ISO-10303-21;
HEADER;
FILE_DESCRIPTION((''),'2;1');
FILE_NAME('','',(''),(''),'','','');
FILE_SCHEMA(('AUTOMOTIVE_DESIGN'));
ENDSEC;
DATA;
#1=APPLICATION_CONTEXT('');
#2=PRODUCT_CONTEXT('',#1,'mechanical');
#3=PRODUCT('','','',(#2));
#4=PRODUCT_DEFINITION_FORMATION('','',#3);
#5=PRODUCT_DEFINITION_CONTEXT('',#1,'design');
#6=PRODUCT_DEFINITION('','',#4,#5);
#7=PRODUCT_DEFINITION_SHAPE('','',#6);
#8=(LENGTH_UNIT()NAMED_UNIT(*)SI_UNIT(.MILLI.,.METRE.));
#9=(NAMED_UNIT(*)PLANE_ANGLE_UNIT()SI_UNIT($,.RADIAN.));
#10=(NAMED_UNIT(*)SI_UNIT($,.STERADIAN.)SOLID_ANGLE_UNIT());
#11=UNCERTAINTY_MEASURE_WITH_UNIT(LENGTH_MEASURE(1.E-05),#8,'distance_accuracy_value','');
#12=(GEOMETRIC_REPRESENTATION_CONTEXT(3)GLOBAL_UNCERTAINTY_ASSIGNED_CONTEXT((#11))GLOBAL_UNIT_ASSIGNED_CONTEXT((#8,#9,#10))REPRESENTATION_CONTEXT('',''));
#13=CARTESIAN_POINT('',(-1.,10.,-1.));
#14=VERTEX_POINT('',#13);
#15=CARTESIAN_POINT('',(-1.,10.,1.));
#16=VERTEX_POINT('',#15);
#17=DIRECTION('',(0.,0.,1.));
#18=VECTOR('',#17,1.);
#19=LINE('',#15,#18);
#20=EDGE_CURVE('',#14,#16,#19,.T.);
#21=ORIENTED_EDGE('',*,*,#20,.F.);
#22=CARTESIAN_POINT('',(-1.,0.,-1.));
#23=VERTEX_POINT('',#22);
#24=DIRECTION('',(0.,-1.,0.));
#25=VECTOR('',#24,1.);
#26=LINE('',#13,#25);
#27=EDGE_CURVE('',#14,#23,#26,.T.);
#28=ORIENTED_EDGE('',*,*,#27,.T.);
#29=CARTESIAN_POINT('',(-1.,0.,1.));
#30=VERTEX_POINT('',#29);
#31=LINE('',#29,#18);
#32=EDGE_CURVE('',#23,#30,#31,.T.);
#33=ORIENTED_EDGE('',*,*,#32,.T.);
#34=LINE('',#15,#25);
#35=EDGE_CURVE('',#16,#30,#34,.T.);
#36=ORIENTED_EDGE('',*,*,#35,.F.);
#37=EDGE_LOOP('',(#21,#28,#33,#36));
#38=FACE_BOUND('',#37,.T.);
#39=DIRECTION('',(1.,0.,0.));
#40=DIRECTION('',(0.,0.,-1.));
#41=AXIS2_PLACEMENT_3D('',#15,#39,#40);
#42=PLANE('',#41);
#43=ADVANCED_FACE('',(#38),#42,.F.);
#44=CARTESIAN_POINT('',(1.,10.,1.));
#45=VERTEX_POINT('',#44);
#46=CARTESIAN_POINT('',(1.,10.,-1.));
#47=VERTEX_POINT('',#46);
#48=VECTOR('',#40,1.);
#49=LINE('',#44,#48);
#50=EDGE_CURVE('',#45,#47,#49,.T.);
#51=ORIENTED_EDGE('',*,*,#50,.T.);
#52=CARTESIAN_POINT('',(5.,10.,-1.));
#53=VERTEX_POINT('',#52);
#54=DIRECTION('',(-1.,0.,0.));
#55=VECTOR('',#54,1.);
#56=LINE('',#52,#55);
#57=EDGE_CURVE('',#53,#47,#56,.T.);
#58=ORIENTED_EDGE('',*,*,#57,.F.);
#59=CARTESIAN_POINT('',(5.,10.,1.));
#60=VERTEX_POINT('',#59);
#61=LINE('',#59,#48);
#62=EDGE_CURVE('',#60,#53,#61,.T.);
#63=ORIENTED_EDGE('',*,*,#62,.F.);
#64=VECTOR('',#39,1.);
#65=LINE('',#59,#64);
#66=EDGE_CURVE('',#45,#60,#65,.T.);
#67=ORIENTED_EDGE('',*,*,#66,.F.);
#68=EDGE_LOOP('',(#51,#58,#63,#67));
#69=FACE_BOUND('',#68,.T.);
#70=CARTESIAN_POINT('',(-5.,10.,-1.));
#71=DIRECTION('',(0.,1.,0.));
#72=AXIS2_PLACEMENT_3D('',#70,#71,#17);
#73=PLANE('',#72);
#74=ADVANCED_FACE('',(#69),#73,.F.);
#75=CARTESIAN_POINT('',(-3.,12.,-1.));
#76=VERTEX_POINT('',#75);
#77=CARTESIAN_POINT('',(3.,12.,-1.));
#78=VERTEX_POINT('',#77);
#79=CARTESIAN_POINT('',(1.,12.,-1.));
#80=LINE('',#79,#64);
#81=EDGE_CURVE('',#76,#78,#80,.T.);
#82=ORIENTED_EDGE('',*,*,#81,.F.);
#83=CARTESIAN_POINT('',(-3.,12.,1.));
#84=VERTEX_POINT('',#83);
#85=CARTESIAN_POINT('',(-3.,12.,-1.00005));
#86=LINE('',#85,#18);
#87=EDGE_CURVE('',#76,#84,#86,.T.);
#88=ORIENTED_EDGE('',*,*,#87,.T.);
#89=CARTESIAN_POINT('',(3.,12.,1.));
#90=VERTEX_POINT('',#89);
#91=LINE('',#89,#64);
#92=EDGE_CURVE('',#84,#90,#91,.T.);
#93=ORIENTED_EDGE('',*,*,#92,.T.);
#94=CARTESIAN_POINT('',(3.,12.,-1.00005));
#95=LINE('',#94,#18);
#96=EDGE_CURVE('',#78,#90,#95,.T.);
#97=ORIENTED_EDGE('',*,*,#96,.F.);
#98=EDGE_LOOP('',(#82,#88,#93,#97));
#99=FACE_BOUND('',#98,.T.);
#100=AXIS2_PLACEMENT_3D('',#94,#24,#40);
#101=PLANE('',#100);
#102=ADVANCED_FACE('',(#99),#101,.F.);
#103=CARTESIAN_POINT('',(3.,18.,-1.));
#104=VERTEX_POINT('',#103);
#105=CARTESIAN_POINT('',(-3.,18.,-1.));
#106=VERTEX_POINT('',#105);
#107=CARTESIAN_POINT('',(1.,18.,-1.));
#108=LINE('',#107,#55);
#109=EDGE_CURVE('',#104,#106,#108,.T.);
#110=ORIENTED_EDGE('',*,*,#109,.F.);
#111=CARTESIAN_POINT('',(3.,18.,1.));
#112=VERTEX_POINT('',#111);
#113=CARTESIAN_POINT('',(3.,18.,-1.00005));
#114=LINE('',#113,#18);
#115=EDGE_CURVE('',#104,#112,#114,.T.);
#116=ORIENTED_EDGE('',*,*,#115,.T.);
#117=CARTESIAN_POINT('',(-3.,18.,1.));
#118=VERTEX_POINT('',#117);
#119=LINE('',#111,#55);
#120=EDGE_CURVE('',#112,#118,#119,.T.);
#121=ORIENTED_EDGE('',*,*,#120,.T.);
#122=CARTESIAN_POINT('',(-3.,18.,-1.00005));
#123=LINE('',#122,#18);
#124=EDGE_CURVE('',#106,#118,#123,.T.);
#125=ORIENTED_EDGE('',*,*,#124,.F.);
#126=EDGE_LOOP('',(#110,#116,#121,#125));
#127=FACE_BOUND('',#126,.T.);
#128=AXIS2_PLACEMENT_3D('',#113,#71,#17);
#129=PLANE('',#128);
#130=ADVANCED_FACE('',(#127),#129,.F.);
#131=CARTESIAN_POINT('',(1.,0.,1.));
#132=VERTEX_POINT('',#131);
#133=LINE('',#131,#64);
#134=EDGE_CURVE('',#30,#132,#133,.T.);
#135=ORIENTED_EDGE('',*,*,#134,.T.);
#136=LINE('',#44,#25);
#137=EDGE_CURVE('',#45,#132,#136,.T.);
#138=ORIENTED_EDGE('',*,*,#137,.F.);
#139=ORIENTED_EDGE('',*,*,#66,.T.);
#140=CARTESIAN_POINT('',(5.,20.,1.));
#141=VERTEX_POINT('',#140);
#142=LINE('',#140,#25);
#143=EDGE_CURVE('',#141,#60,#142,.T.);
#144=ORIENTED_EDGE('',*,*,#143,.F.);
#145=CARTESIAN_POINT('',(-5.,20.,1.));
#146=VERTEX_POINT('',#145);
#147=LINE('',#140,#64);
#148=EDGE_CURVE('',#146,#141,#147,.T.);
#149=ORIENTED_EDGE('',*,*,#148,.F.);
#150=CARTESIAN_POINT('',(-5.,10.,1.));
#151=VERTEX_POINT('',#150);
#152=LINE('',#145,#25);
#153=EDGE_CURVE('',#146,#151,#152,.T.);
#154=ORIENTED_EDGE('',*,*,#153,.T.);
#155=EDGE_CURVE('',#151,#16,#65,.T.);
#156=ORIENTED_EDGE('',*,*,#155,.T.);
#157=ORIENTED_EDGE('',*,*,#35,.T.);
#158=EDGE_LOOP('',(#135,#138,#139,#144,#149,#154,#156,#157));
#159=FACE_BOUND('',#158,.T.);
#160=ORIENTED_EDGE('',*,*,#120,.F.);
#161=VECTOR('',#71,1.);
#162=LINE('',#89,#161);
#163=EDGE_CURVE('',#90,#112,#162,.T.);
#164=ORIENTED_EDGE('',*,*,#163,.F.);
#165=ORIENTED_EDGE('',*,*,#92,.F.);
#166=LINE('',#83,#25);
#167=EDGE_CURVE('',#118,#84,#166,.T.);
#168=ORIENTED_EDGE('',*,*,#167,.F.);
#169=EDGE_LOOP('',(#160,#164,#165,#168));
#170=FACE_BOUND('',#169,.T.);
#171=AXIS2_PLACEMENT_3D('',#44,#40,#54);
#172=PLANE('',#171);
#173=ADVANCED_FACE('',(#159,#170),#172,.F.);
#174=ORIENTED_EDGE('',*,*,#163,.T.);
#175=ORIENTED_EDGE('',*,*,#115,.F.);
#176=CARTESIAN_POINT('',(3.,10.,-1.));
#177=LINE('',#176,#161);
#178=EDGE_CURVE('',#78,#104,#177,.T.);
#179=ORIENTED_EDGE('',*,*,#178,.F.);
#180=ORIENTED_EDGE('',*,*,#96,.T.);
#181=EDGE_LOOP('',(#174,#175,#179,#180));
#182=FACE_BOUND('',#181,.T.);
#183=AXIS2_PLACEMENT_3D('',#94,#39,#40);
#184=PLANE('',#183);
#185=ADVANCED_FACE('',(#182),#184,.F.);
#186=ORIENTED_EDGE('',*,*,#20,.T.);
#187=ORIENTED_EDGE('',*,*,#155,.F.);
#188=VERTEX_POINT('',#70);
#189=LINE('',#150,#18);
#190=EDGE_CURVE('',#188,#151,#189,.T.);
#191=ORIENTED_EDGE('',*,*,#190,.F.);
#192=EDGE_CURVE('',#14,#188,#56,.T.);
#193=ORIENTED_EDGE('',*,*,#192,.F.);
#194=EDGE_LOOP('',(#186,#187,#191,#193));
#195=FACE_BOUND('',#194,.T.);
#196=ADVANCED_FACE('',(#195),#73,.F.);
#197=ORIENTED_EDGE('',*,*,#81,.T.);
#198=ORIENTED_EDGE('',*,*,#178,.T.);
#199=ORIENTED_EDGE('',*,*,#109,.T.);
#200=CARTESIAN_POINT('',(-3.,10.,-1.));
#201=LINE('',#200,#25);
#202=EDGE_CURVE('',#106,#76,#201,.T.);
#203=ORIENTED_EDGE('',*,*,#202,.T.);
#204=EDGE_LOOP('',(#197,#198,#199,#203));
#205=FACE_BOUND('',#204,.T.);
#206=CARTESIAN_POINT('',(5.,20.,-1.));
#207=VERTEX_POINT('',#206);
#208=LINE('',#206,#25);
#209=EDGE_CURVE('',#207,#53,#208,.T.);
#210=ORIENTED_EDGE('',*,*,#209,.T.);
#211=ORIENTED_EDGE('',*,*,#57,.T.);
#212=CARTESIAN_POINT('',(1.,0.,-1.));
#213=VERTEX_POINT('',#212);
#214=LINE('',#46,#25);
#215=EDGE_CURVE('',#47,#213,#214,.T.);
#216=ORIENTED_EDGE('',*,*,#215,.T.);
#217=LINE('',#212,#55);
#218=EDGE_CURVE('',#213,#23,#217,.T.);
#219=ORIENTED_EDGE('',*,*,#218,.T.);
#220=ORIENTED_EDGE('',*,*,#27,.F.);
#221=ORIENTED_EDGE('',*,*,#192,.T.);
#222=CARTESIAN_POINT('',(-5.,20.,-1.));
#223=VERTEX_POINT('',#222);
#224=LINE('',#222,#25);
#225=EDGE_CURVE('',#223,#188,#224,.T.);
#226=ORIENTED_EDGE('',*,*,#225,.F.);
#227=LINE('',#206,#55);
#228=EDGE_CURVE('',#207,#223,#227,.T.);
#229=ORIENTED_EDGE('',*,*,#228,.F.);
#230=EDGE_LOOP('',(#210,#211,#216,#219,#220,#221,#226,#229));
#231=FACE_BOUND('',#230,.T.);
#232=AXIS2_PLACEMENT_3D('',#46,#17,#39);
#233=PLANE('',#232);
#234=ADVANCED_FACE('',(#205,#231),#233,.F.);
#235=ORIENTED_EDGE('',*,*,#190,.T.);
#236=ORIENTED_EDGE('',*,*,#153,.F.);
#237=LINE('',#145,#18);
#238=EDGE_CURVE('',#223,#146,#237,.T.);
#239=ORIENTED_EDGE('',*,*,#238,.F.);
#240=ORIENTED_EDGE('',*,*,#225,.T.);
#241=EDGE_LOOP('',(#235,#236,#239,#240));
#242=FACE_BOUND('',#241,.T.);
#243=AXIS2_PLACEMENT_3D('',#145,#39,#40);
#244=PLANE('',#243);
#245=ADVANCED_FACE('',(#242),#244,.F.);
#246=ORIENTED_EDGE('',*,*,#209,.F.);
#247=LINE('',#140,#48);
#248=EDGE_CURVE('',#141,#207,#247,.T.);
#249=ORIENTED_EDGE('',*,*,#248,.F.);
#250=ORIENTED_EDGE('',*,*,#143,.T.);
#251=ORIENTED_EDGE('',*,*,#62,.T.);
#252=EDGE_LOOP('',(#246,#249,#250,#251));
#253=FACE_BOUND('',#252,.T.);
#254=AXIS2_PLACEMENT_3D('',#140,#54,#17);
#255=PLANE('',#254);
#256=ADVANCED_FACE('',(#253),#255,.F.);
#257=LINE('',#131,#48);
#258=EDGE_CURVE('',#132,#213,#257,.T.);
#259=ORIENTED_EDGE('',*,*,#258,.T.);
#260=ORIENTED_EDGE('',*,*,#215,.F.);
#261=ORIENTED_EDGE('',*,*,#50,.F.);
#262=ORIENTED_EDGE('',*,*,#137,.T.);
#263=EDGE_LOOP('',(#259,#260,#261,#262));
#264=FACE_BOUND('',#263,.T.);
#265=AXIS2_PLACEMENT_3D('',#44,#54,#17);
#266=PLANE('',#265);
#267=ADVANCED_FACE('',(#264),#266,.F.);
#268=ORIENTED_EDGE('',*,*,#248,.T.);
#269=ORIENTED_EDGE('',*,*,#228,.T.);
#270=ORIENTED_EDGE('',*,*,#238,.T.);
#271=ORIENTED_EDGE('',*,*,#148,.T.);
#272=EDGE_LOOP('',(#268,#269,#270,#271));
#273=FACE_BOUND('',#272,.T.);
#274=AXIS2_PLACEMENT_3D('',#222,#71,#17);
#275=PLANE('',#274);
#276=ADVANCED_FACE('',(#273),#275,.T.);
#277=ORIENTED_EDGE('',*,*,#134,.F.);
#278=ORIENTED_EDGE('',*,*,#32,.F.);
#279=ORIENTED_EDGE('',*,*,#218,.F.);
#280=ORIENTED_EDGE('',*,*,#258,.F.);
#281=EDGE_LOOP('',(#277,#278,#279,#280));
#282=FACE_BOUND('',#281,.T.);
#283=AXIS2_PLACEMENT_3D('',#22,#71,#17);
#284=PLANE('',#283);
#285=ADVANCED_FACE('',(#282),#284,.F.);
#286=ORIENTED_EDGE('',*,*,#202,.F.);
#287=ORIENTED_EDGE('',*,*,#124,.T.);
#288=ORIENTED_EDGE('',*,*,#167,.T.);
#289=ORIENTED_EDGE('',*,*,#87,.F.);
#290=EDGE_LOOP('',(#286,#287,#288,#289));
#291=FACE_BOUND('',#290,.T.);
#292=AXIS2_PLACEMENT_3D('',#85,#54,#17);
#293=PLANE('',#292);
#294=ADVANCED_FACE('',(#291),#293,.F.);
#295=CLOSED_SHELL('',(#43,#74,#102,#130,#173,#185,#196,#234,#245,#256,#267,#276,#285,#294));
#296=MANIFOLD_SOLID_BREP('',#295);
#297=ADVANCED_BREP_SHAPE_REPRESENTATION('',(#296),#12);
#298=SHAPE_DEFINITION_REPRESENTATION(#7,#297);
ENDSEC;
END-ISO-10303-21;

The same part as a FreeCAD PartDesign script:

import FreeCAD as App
import Part
import Sketcher
Q = App.Units.Quantity

doc = App.newDocument("Part")
body = doc.addObject("PartDesign::Body", "Body")

# Sketch on XZ plane
sketch1 = doc.addObject("Sketcher::SketchObject", "Sketch")
body.addObject(sketch1)
sketch1.AttachmentSupport = (doc.XZ_Plane, [""])
sketch1.MapMode = "FlatFace"
sketch1.addGeometry([
    Part.LineSegment(App.Vector(-1, -1, 0), App.Vector(-1, 1, 0)),
    Part.LineSegment(App.Vector(-1, 1, 0), App.Vector(1, 1, 0)),
    Part.LineSegment(App.Vector(1, 1, 0), App.Vector(1, -1, 0)),
    Part.LineSegment(App.Vector(1, -1, 0), App.Vector(-1, -1, 0)),
], False)
sketch1.addConstraint([
    Sketcher.Constraint("Coincident", 0, 2, 1, 1),
    Sketcher.Constraint("Coincident", 1, 2, 2, 1),
    Sketcher.Constraint("Coincident", 2, 2, 3, 1),
    Sketcher.Constraint("Coincident", 3, 2, 0, 1),
    Sketcher.Constraint("Vertical", 0),
    Sketcher.Constraint("Horizontal", 1),
    Sketcher.Constraint("Vertical", 2),
    Sketcher.Constraint("Horizontal", 3),
    Sketcher.Constraint("Symmetric", 0, 2, 2, 2, -1, 1),
    Sketcher.Constraint("Equal", 3, 0),
    Sketcher.Constraint("DistanceX", 1, 1, 1, 2, Q("2 mm")),
])
pad1 = doc.addObject("PartDesign::Pad", "Pad")
body.addObject(pad1)
pad1.Profile = sketch1
pad1.Length = 10
pad1.Reversed = True

# Sketch on XZ plane
sketch2 = doc.addObject("Sketcher::SketchObject", "Sketch001")
body.addObject(sketch2)
sketch2.AttachmentSupport = (doc.XZ_Plane, [""])
sketch2.MapMode = "FlatFace"
sketch2.AttachmentOffset = App.Placement(App.Vector(0, 0, -10), App.Rotation())
sketch2.addGeometry([
    Part.LineSegment(App.Vector(5, 1, 0), App.Vector(5, -1, 0)),
    Part.LineSegment(App.Vector(5, -1, 0), App.Vector(-5, -1, 0)),
    Part.LineSegment(App.Vector(-5, -1, 0), App.Vector(-5, 1, 0)),
    Part.LineSegment(App.Vector(-5, 1, 0), App.Vector(5, 1, 0)),
], False)
sketch2.addConstraint([
    Sketcher.Constraint("Coincident", 0, 2, 1, 1),
    Sketcher.Constraint("Coincident", 1, 2, 2, 1),
    Sketcher.Constraint("Coincident", 2, 2, 3, 1),
    Sketcher.Constraint("Coincident", 3, 2, 0, 1),
    Sketcher.Constraint("Vertical", 0),
    Sketcher.Constraint("Horizontal", 1),
    Sketcher.Constraint("Vertical", 2),
    Sketcher.Constraint("Horizontal", 3),
    Sketcher.Constraint("Symmetric", 0, 2, 2, 2, -1, 1),
    Sketcher.Constraint("DistanceX", 1, 2, 1, 1, Q("10 mm")),
    Sketcher.Constraint("DistanceY", 0, 2, 0, 1, Q("2 mm")),
])
pad2 = doc.addObject("PartDesign::Pad", "Pad001")
body.addObject(pad2)
pad2.Profile = sketch2
pad2.Length = 10
pad2.Reversed = True

# Sketch on XY plane
sketch3 = doc.addObject("Sketcher::SketchObject", "Sketch002")
body.addObject(sketch3)
sketch3.AttachmentSupport = (doc.XY_Plane, [""])
sketch3.MapMode = "FlatFace"
sketch3.AttachmentOffset = App.Placement(App.Vector(0, 0, 1), App.Rotation())
sketch3.addGeometry([
    Part.LineSegment(App.Vector(-3, 18, 0), App.Vector(-3, 12, 0)),
    Part.LineSegment(App.Vector(-3, 12, 0), App.Vector(3, 12, 0)),
    Part.LineSegment(App.Vector(3, 12, 0), App.Vector(3, 18, 0)),
    Part.LineSegment(App.Vector(3, 18, 0), App.Vector(-3, 18, 0)),
], False)
sketch3.addConstraint([
    Sketcher.Constraint("Coincident", 0, 2, 1, 1),
    Sketcher.Constraint("Coincident", 1, 2, 2, 1),
    Sketcher.Constraint("Coincident", 2, 2, 3, 1),
    Sketcher.Constraint("Coincident", 3, 2, 0, 1),
    Sketcher.Constraint("Vertical", 0),
    Sketcher.Constraint("Horizontal", 1),
    Sketcher.Constraint("Vertical", 2),
    Sketcher.Constraint("Horizontal", 3),
    Sketcher.Constraint("Equal", 3, 0),
    Sketcher.Constraint("DistanceX", 1, 1, 1, 2, Q("6 mm")),
    Sketcher.Constraint("DistanceX", 0, 2, -1, 1, Q("3 mm")),
    Sketcher.Constraint("DistanceY", -1, 1, 0, 2, Q("12 mm")),
])
pocket1 = doc.addObject("PartDesign::Pocket", "Pocket")
body.addObject(pocket1)
pocket1.Profile = sketch3
pocket1.Type = "ThroughAll"

doc.recompute()
